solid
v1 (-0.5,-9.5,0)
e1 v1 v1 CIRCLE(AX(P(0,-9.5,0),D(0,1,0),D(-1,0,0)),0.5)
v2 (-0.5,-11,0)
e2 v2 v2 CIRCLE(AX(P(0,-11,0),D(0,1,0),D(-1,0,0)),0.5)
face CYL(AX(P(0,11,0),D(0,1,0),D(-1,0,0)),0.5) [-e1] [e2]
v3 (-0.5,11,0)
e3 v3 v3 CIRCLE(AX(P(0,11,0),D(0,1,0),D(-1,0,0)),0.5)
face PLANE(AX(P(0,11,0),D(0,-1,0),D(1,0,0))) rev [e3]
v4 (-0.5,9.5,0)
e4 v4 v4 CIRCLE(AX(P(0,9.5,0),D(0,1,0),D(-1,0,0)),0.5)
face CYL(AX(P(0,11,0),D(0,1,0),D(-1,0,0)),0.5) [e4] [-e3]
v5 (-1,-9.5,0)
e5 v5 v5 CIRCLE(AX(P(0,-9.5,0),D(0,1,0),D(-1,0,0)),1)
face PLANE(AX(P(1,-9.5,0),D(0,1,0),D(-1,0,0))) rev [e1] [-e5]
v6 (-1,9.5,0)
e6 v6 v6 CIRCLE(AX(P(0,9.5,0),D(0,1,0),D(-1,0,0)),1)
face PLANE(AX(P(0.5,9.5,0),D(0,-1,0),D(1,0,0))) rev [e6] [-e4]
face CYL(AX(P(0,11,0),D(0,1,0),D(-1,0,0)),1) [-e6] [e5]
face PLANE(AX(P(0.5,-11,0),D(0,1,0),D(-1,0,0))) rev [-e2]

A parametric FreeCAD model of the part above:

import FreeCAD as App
import Part
import Sketcher
from FreeCAD import Vector
Q = App.Units.Quantity


def add_polygon(sketch, points):
    """Adds a closed chain of lines whose ends are joined by coincident constraints."""
    first, n = sketch.GeometryCount, len(points)
    for a, b in zip(points, points[1:] + points[:1]):
        sketch.addGeometry(Part.LineSegment(App.Vector(*a, 0), App.Vector(*b, 0)), False)
    for i in range(n):
        sketch.addConstraint(Sketcher.Constraint("Coincident", first + i, 2, first + (i + 1) % n, 1))

doc = App.newDocument("Part")
body = doc.addObject("PartDesign::Body", "Body")

# Sketch on XY plane
sketch1 = doc.addObject("Sketcher::SketchObject", "Sketch")
body.addObject(sketch1)
sketch1.AttachmentSupport = (doc.XY_Plane, [""])
sketch1.MapMode = "FlatFace"
add_polygon(sketch1, [(0.5, 11), (0, 11), (0, -11), (0.5, -11), (0.5, -9.5), (1, -9.5), (1, 9.5), (0.5, 9.5)])  # lines 0-7
sketch1.addConstraint(Sketcher.Constraint("Horizontal", 0))
sketch1.addConstraint(Sketcher.Constraint("Vertical", 1))
sketch1.addConstraint(Sketcher.Constraint("Horizontal", 2))
sketch1.addConstraint(Sketcher.Constraint("Vertical", 3))
sketch1.addConstraint(Sketcher.Constraint("Horizontal", 4))
sketch1.addConstraint(Sketcher.Constraint("Vertical", 5))
sketch1.addConstraint(Sketcher.Constraint("Horizontal", 6))
sketch1.addConstraint(Sketcher.Constraint("Vertical", 7))
sketch1.addConstraint(Sketcher.Constraint("Symmetric", 0, 2, 1, 2, -1, 1))
sketch1.addConstraint(Sketcher.Constraint("Symmetric", 3, 2, 6, 2, -1))
sketch1.addConstraint(Sketcher.Constraint("Equal", 2, 4))
sketch1.addConstraint(Sketcher.Constraint("DistanceY", 1, 2, 1, 1, Q("22 mm")))
sketch1.addConstraint(Sketcher.Constraint("DistanceY", 5, 1, 5, 2, Q("19 mm")))
sketch1.addConstraint(Sketcher.Constraint("DistanceX", 0, 2, 0, 1, Q("0.5 mm")))
revolution = doc.addObject("PartDesign::Revolution", "Revolution")
body.addObject(revolution)
revolution.Profile = sketch1
revolution.ReferenceAxis = (sketch1, ["V_Axis"])
revolution.Angle = 360

doc.recompute()
